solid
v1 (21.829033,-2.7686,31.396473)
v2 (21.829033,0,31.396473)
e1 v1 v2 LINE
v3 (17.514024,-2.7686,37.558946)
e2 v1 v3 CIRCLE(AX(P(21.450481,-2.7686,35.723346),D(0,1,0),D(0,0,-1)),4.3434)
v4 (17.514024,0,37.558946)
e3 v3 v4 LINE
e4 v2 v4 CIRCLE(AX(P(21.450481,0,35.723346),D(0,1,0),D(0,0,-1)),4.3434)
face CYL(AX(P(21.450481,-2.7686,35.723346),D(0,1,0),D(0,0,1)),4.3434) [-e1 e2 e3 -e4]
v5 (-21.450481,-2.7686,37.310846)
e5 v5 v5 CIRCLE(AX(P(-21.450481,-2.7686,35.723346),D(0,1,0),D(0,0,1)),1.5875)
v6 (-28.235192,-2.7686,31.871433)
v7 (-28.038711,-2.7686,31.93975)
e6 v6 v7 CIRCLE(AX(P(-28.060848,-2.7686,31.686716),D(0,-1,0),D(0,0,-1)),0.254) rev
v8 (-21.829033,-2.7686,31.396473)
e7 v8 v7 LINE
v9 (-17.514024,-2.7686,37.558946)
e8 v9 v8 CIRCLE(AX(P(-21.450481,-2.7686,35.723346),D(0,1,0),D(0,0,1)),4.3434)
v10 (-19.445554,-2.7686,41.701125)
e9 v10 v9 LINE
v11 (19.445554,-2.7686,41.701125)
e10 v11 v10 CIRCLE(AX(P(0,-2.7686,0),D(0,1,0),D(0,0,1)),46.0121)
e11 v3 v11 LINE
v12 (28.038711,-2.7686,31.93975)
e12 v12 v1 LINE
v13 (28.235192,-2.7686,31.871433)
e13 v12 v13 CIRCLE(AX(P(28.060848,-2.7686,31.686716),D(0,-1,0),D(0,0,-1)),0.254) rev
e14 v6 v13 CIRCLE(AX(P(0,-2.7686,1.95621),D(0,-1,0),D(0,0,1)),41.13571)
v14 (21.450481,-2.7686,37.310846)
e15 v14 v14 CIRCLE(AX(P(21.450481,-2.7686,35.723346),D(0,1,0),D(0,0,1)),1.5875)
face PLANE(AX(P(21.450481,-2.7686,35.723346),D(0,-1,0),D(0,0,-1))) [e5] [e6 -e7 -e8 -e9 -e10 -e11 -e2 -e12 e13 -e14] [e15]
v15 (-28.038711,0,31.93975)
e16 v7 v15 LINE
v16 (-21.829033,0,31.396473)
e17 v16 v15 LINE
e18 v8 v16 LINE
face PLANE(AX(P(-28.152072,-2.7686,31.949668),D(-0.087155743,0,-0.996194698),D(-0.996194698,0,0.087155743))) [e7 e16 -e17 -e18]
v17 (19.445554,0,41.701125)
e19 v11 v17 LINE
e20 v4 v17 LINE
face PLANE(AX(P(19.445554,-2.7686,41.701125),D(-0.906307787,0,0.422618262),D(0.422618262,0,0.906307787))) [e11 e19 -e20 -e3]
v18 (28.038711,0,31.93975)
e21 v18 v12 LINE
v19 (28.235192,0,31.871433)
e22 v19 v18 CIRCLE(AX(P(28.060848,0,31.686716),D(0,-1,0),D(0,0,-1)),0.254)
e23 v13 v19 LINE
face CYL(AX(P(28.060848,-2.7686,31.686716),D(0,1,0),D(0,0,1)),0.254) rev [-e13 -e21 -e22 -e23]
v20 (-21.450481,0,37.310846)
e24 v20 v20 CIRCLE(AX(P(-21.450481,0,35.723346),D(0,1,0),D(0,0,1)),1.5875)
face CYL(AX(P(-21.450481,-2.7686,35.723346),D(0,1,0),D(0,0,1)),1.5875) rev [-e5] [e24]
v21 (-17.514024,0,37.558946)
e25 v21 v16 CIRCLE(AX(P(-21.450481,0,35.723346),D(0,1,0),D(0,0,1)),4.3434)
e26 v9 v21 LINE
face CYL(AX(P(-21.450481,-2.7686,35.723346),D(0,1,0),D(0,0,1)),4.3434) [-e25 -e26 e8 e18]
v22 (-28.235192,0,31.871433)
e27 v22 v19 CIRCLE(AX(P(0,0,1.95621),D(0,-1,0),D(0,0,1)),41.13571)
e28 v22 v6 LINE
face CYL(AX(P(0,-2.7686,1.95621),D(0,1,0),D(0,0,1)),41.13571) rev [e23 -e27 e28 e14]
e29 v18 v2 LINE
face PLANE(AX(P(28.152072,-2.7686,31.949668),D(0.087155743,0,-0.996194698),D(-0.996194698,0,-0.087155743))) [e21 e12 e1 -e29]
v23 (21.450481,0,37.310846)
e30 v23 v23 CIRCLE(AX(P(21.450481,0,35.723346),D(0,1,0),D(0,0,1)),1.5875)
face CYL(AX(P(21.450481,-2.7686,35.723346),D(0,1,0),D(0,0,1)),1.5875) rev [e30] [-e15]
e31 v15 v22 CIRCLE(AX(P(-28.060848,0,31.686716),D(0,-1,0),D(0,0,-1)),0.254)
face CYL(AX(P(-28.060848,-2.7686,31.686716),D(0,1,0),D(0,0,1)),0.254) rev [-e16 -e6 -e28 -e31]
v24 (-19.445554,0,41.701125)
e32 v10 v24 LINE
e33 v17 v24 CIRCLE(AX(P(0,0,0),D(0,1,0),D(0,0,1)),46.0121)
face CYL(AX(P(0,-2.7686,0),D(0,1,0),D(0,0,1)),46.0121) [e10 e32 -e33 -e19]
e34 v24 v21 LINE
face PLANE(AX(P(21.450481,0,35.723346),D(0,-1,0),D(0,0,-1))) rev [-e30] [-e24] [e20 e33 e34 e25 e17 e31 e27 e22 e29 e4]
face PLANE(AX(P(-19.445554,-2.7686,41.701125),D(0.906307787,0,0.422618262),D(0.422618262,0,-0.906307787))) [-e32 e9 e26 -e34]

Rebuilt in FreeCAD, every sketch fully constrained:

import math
import FreeCAD as App
import Part
import Sketcher
Q = App.Units.Quantity


def edges_at(feature, points):
    """Names of the edges that pass closest to the given points."""
    edges = feature.Shape.Edges
    near = lambda p: min(range(len(edges)), key=lambda i: edges[i].distToShape(Part.Vertex(*p))[0])
    return sorted({f"Edge{near(p) + 1}" for p in points})

doc = App.newDocument("Part")
body = doc.addObject("PartDesign::Body", "Body")

sketch1 = doc.addObject("Sketcher::SketchObject", "Sketch")
body.addObject(sketch1)
sketch1.AttachmentSupport = (doc.XZ_Plane, [""])
sketch1.MapMode = "FlatFace"
sketch1.addGeometry([
    Part.LineSegment(App.Vector(17.514024, 37.558946, 0), App.Vector(19.445554, 41.701125, 0)),
    Part.ArcOfCircle(Part.Circle(App.Vector(0, 0, 0), App.Vector(0, 0, 1), 46.0121), math.radians(115), math.radians(425)),
    Part.LineSegment(App.Vector(-19.445554, 41.701125, 0), App.Vector(-17.514024, 37.558946, 0)),
    Part.ArcOfCircle(Part.Circle(App.Vector(-21.450481, 35.723346, 0), App.Vector(0, 0, 1), 4.3434), math.radians(-95), math.radians(25)),
    Part.LineSegment(App.Vector(-21.829033, 31.396473, 0), App.Vector(-28.152072, 31.949668, 0)),
    Part.ArcOfCircle(Part.Circle(App.Vector(0, 1.95621, 0), App.Vector(0, 0, 1), 41.13571), math.radians(133.186131), math.radians(406.813869)),
    Part.LineSegment(App.Vector(28.152072, 31.949668, 0), App.Vector(21.829033, 31.396473, 0)),
    Part.ArcOfCircle(Part.Circle(App.Vector(21.450481, 35.723346, 0), App.Vector(0, 0, 1), 4.3434), math.radians(155), math.radians(275)),
    Part.Circle(App.Vector(21.450481, 35.723346, 0), App.Vector(0, 0, 1), 1.5875),
    Part.Circle(App.Vector(-21.450481, 35.723346, 0), App.Vector(0, 0, 1), 1.5875),
], False)
sketch1.addConstraint([
    Sketcher.Constraint("Coincident", 0, 2, 1, 2),
    Sketcher.Constraint("Coincident", 1, 1, 2, 1),
    Sketcher.Constraint("Tangent", 2, 2, 3, 2),
    Sketcher.Constraint("Tangent", 3, 1, 4, 1),
    Sketcher.Constraint("Coincident", 4, 2, 5, 1),
    Sketcher.Constraint("Coincident", 5, 2, 6, 1),
    Sketcher.Constraint("Tangent", 6, 2, 7, 2),
    Sketcher.Constraint("Tangent", 7, 1, 0, 1),
    Sketcher.Constraint("Coincident", 1, 3, -1, 1),
    Sketcher.Constraint("Coincident", 8, 3, 7, 3),
    Sketcher.Constraint("Coincident", 9, 3, 3, 3),
    Sketcher.Constraint("Equal", 3, 7),
    Sketcher.Constraint("Equal", 8, 9),
    Sketcher.Constraint("Symmetric", 3, 3, 7, 3, -2),
    Sketcher.Constraint("Symmetric", 4, 2, 5, 2, -2),
    Sketcher.Constraint("Horizontal", 0, 2, 1, 1),
    Sketcher.Constraint("Diameter", 8, Q("0.125 in")),
    Sketcher.Constraint("Angle", 0, Q("65 deg")),
    Sketcher.Constraint("Angle", 4, Q("175 deg")),
    Sketcher.Constraint("Radius", 3, Q("0.171 in")),
    Sketcher.Constraint("Radius", 1, Q("1.8115 in")),
    Sketcher.Constraint("Radius", 5, 41.13571),
    Sketcher.Constraint("Distance", 0, 4.570389),
    Sketcher.Constraint("Distance", 4, 6.347191),
    Sketcher.Constraint("DistanceX", 3, 3, -1, 1, 21.450481),
])
pad1 = doc.addObject("PartDesign::Pad", "Pad")
body.addObject(pad1)
pad1.Profile = sketch1
pad1.Length = Q("0.109 in")
doc.recompute()

fillet = doc.addObject("PartDesign::Fillet", "Fillet")
body.addObject(fillet)
fillet.Base = (pad1, edges_at(pad1, [(28.152, -1.384, 31.95), (-28.152, -1.384, 31.95)]))
fillet.Radius = Q("0.01 in")

doc.recompute()
